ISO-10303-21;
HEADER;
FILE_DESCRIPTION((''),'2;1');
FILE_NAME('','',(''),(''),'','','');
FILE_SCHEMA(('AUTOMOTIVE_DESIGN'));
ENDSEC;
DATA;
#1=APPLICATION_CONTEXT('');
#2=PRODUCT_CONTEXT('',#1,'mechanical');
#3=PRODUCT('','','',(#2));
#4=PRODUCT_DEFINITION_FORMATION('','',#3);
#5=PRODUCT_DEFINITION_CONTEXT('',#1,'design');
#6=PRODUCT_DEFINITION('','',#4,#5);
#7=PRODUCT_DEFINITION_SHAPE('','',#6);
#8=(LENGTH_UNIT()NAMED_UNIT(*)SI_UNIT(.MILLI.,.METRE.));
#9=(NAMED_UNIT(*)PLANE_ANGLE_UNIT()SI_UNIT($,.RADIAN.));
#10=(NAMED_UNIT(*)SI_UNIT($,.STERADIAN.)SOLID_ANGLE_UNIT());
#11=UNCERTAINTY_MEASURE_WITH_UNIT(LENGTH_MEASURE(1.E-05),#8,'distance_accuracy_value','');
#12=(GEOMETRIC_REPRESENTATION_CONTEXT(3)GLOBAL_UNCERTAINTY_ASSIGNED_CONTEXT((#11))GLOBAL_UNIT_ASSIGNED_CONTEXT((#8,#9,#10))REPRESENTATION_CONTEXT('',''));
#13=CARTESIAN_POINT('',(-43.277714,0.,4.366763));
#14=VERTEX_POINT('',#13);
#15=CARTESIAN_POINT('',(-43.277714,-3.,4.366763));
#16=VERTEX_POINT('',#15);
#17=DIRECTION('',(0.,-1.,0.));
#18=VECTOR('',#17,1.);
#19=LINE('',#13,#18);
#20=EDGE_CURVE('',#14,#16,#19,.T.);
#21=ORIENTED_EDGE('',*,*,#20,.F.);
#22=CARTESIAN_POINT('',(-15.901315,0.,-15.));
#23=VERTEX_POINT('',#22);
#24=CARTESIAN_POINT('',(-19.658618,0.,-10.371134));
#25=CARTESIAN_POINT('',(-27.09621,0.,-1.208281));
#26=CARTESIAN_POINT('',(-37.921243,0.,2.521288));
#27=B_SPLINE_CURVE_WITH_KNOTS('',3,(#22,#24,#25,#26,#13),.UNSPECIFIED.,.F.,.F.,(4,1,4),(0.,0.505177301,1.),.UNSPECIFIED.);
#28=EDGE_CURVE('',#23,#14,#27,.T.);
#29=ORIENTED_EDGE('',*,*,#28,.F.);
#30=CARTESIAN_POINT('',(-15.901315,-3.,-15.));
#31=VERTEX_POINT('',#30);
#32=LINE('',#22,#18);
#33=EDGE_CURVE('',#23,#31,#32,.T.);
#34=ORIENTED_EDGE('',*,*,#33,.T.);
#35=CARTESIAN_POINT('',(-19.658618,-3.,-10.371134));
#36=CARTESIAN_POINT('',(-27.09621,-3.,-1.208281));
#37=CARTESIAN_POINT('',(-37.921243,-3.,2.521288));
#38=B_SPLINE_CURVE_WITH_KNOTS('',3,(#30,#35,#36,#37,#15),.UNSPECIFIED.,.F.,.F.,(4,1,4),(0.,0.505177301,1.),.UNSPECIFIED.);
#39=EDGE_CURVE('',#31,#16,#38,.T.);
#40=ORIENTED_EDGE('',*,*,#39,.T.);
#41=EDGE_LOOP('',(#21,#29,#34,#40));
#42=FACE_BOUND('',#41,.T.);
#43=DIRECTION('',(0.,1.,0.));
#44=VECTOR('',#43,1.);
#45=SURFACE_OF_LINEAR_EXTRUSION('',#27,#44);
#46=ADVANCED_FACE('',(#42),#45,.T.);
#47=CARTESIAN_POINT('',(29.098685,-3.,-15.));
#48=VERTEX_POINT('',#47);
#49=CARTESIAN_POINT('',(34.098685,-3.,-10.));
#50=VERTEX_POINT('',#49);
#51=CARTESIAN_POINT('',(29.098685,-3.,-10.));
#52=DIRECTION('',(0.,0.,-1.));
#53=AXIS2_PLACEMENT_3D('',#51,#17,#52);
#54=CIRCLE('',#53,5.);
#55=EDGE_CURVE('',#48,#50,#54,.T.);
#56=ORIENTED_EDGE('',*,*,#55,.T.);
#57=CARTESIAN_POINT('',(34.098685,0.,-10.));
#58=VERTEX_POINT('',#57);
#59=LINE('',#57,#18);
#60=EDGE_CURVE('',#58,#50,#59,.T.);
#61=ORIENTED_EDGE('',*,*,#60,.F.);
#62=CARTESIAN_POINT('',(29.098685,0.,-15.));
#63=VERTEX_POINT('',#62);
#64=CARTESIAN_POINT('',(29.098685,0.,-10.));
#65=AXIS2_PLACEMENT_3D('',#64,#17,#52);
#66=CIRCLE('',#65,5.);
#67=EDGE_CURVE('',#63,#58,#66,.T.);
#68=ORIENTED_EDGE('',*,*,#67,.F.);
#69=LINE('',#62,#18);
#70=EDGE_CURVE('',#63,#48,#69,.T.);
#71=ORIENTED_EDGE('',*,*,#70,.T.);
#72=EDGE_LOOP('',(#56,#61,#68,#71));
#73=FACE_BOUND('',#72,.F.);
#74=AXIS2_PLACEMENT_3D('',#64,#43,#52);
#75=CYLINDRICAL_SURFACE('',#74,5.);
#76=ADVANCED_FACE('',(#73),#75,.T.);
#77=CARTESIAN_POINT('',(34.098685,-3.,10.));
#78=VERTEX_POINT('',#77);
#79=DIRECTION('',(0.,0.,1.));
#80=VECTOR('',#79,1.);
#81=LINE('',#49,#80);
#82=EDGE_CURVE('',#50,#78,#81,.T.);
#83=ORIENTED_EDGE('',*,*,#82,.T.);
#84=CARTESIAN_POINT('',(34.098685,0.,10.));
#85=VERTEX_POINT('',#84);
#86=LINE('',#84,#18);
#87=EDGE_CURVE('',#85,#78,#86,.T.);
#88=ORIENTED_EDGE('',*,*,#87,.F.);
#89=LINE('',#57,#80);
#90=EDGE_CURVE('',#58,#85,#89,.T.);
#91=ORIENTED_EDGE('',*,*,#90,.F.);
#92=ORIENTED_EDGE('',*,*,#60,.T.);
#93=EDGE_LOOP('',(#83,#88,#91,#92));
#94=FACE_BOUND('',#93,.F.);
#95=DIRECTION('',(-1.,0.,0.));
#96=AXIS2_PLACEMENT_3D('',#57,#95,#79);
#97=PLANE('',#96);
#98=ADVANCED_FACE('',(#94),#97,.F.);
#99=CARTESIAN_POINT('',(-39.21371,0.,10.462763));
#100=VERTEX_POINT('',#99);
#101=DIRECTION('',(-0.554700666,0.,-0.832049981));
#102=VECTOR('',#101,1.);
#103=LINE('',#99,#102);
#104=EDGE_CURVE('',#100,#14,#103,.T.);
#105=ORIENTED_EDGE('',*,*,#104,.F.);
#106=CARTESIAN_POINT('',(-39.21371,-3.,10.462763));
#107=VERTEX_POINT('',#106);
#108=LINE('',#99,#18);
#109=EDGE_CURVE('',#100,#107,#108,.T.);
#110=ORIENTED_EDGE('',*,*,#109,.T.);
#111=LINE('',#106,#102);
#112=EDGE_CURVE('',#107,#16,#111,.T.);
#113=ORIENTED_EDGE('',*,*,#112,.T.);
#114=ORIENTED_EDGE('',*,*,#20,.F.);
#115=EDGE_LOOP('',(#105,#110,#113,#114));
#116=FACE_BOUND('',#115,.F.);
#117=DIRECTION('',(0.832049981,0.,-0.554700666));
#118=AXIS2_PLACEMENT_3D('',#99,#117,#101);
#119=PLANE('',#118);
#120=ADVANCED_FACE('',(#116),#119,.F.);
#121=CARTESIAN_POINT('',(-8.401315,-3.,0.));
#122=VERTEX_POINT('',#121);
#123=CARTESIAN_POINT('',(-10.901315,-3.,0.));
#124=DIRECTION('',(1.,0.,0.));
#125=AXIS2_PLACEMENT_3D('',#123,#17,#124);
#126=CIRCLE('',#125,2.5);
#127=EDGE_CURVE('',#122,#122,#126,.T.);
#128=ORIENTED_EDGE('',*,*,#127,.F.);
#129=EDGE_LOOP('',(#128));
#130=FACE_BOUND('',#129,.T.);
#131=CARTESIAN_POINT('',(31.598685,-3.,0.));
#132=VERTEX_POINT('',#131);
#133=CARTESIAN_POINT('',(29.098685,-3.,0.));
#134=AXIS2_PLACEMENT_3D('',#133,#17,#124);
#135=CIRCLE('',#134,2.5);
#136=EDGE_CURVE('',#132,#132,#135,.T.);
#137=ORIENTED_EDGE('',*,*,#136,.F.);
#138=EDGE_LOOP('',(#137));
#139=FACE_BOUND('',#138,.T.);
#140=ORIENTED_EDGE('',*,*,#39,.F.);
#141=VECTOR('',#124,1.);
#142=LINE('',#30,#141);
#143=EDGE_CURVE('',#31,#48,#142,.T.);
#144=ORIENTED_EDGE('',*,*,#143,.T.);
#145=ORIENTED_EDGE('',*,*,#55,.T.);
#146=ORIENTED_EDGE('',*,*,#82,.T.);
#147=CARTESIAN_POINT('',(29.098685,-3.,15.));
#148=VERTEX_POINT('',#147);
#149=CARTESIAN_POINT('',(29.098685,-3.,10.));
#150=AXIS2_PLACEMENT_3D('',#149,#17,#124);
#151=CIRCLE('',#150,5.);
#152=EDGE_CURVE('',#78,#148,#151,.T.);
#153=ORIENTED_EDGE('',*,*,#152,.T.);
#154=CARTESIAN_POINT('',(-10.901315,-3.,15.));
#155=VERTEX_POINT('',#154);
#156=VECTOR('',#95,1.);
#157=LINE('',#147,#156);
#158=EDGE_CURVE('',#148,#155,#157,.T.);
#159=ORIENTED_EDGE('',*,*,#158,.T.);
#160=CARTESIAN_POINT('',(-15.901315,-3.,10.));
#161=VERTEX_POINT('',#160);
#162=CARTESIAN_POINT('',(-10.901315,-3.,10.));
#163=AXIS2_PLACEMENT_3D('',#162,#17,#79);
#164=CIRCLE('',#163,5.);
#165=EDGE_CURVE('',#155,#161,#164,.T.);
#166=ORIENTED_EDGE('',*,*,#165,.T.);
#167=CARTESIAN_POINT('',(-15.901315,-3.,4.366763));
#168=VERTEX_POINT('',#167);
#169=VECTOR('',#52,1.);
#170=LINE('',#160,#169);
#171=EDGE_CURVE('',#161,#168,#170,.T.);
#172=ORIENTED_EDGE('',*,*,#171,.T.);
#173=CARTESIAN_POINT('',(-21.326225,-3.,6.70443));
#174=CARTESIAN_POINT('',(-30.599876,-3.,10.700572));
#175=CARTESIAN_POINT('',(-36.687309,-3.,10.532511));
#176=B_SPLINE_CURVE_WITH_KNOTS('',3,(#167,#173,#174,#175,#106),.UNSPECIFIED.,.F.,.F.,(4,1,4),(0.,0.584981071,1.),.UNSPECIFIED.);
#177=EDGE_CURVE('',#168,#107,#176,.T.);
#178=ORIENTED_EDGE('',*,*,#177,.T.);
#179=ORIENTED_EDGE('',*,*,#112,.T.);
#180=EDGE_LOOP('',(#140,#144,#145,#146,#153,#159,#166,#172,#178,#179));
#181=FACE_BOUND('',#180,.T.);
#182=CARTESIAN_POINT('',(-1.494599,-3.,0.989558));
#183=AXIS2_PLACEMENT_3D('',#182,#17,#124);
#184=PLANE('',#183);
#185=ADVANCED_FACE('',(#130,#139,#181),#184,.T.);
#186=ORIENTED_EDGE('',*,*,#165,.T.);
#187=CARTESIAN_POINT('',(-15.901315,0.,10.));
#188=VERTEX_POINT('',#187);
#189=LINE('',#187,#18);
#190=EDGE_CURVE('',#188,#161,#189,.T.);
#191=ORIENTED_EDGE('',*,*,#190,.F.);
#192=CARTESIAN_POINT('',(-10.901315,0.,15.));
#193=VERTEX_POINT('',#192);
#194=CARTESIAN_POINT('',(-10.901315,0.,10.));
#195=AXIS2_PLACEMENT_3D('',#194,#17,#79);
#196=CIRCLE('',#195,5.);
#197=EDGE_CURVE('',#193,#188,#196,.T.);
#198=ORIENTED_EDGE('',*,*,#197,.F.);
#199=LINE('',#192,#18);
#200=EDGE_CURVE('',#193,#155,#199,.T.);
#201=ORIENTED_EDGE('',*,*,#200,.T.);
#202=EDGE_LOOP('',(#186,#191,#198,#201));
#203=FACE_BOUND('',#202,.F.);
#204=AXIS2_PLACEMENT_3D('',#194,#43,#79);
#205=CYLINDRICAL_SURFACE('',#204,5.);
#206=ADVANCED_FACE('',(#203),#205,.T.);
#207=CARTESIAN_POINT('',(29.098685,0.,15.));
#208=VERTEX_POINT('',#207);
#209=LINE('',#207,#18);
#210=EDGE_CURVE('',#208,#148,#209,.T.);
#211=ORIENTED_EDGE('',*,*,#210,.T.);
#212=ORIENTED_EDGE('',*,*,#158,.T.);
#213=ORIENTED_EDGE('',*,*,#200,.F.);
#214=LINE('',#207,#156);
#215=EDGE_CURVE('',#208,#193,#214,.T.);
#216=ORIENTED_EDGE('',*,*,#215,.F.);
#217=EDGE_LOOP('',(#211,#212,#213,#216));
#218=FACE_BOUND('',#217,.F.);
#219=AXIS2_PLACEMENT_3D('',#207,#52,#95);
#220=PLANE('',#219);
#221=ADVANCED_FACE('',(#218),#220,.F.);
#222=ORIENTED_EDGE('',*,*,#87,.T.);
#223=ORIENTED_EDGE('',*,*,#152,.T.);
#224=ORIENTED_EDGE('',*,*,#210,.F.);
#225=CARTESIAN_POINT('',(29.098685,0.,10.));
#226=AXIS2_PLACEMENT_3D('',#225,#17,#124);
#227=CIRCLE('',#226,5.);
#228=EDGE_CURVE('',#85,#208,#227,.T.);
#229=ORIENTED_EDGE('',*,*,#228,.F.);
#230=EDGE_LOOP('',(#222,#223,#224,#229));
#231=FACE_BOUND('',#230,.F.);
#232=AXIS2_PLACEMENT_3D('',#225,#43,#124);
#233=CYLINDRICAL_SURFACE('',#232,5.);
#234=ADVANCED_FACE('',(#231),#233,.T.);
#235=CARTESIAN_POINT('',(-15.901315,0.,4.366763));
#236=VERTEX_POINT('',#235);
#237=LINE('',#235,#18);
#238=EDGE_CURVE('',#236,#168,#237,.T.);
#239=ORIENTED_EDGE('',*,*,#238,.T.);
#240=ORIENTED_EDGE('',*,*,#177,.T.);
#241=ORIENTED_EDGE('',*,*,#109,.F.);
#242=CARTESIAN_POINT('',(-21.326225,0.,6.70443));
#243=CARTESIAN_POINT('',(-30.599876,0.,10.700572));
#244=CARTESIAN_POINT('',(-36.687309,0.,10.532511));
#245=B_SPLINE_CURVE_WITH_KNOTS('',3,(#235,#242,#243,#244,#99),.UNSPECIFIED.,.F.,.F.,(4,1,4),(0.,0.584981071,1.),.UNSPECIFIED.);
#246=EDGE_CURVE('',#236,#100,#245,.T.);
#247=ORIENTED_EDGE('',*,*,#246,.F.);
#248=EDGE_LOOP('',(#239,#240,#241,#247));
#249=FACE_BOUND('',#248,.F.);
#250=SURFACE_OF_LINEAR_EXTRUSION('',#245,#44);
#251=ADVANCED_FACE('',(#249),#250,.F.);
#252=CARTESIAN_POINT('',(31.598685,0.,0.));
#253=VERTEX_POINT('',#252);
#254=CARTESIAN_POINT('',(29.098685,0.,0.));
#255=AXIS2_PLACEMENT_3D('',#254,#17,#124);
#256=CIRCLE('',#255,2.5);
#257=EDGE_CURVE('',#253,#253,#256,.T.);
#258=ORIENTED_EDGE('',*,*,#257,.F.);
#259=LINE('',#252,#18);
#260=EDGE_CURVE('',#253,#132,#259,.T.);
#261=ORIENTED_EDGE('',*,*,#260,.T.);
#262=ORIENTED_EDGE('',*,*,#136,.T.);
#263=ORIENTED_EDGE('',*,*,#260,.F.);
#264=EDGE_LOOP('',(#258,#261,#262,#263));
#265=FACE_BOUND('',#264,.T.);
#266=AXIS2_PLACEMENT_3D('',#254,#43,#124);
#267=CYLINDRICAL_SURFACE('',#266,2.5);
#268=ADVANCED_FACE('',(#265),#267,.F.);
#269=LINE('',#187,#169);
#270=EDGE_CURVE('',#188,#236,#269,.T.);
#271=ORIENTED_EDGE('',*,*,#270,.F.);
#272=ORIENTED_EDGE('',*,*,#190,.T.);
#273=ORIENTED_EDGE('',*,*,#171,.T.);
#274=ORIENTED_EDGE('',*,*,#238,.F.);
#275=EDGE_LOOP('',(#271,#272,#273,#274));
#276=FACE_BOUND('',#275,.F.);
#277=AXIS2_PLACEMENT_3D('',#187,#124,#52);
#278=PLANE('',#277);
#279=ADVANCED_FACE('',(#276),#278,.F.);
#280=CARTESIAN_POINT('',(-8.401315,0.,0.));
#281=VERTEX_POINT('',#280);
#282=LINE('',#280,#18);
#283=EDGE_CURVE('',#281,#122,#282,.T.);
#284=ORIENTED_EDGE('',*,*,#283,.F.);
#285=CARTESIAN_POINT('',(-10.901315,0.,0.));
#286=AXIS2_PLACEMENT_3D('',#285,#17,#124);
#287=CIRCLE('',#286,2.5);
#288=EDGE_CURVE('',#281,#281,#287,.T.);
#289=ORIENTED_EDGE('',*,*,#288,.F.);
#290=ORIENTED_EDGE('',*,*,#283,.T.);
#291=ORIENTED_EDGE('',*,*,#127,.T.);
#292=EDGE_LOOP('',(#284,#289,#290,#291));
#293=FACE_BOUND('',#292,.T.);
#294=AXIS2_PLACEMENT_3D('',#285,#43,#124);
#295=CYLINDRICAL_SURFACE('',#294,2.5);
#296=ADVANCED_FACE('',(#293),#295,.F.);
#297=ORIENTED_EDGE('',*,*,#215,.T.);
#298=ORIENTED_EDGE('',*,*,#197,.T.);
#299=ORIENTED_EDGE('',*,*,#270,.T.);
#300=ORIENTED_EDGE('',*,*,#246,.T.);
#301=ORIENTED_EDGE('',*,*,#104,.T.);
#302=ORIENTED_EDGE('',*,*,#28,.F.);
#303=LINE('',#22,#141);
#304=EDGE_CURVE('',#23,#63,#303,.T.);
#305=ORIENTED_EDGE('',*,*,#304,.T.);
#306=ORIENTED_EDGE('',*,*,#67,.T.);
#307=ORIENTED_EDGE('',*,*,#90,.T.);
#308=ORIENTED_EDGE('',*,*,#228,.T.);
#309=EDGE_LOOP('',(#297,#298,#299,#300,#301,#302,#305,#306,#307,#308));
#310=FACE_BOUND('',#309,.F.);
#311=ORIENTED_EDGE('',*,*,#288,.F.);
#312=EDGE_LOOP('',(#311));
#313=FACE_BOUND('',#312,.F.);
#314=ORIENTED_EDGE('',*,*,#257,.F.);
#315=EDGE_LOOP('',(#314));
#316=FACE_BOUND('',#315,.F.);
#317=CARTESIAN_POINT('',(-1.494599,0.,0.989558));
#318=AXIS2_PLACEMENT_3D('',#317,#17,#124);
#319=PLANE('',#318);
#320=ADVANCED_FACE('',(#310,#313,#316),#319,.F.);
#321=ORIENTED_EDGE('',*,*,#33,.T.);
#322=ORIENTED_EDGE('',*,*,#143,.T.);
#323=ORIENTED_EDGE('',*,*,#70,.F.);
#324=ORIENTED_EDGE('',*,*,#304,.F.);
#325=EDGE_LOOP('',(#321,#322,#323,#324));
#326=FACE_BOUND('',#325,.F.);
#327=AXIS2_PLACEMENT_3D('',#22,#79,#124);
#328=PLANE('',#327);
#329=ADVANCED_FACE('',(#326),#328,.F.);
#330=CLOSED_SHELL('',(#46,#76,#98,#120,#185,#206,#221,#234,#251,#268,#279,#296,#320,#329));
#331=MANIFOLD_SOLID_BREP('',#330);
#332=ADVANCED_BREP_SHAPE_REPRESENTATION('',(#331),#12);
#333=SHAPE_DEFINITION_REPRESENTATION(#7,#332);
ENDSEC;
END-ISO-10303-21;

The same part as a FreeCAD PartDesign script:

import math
import FreeCAD as App
import Part
import Sketcher

doc = App.newDocument("Part")
body = doc.addObject("PartDesign::Body", "Body")

sketch1 = body.newObject("Sketcher::SketchObject", "Sketch")
sketch1.AttachmentSupport = (doc.getObject("XZ_Plane"), [""])
sketch1.MapMode = "FlatFace"
sketch1.addGeometry(Part.LineSegment(App.Vector(29.098685, 15, 0), App.Vector(-10.901315, 15, 0)), False)
sketch1.addGeometry(Part.ArcOfCircle(Part.Circle(App.Vector(-10.901315, 10, 0), App.Vector(0, 0, 1), 5), math.radians(90), math.radians(180)), False)
sketch1.addGeometry(Part.LineSegment(App.Vector(-15.901315, 10, 0), App.Vector(-15.901315, 4.366763, 0)), False)
sketch1.addGeometry(Part.BSplineCurve([App.Vector(-15.901315, 4.366763, 0), App.Vector(-21.326225, 6.70443, 0), App.Vector(-30.599876, 10.700572, 0), App.Vector(-36.687309, 10.532511, 0), App.Vector(-39.21371, 10.462763, 0)], [4, 1, 4], [0, 0.584981071, 1], False, 3, [1, 1, 1, 1, 1], False), False)
sketch1.addGeometry(Part.LineSegment(App.Vector(-39.21371, 10.462763, 0), App.Vector(-43.277714, 4.366763, 0)), False)
sketch1.addGeometry(Part.BSplineCurve([App.Vector(-15.901315, -15, 0), App.Vector(-19.658618, -10.371134, 0), App.Vector(-27.09621, -1.208281, 0), App.Vector(-37.921243, 2.521288, 0), App.Vector(-43.277714, 4.366763, 0)], [4, 1, 4], [0, 0.505177301, 1], False, 3, [1, 1, 1, 1, 1], False), False)
sketch1.addGeometry(Part.LineSegment(App.Vector(-15.901315, -15, 0), App.Vector(29.098685, -15, 0)), False)
sketch1.addGeometry(Part.ArcOfCircle(Part.Circle(App.Vector(29.098685, -10, 0), App.Vector(0, 0, 1), 5), math.radians(-90), math.radians(0)), False)
sketch1.addGeometry(Part.LineSegment(App.Vector(34.098685, -10, 0), App.Vector(34.098685, 10, 0)), False)
sketch1.addGeometry(Part.ArcOfCircle(Part.Circle(App.Vector(29.098685, 10, 0), App.Vector(0, 0, 1), 5), math.radians(0), math.radians(90)), False)
sketch1.addGeometry(Part.Circle(App.Vector(-10.901315, 0, 0), App.Vector(0, 0, 1), 2.5), False)
sketch1.addGeometry(Part.Circle(App.Vector(29.098685, 0, 0), App.Vector(0, 0, 1), 2.5), False)
sketch1.addConstraint(Sketcher.Constraint("Block", 3))
sketch1.addConstraint(Sketcher.Constraint("Block", 5))
sketch1.addConstraint(Sketcher.Constraint("Tangent", 0, 2, 1, 1))
sketch1.addConstraint(Sketcher.Constraint("Tangent", 1, 2, 2, 1))
sketch1.addConstraint(Sketcher.Constraint("Coincident", 2, 2, 3, 1))
sketch1.addConstraint(Sketcher.Constraint("Coincident", 3, 2, 4, 1))
sketch1.addConstraint(Sketcher.Constraint("Coincident", 4, 2, 5, 2))
sketch1.addConstraint(Sketcher.Constraint("Coincident", 5, 1, 6, 1))
sketch1.addConstraint(Sketcher.Constraint("Tangent", 6, 2, 7, 1))
sketch1.addConstraint(Sketcher.Constraint("Tangent", 7, 2, 8, 1))
sketch1.addConstraint(Sketcher.Constraint("Tangent", 8, 2, 9, 1))
sketch1.addConstraint(Sketcher.Constraint("Tangent", 9, 2, 0, 1))
sketch1.addConstraint(Sketcher.Constraint("Horizontal", 0))
sketch1.addConstraint(Sketcher.Constraint("Vertical", 2))
sketch1.addConstraint(Sketcher.Constraint("Horizontal", 6))
sketch1.addConstraint(Sketcher.Constraint("Vertical", 8))
sketch1.addConstraint(Sketcher.Constraint("Equal", 1, 7))
sketch1.addConstraint(Sketcher.Constraint("Equal", 7, 9))
sketch1.addConstraint(Sketcher.Constraint("Equal", 10, 11))
sketch1.addConstraint(Sketcher.Constraint("PointOnObject", 10, 3, -1))
sketch1.addConstraint(Sketcher.Constraint("PointOnObject", 11, 3, -1))
sketch1.addConstraint(Sketcher.Constraint("Vertical", 1, 3, 10, 3))
sketch1.addConstraint(Sketcher.Constraint("Vertical", 9, 3, 11, 3))
sketch1.addConstraint(Sketcher.Constraint("Diameter", 10, 5.0))
sketch1.addConstraint(Sketcher.Constraint("Radius", 1, 5.0))
sketch1.addConstraint(Sketcher.Constraint("DistanceX", 0, 2, 0, 1, 40.0))
sketch1.addConstraint(Sketcher.Constraint("DistanceY", 8, 1, 8, 2, 20.0))
pad1 = body.newObject("PartDesign::Pad", "Pad")
pad1.Profile = sketch1
pad1.Length = 3

doc.recompute()
